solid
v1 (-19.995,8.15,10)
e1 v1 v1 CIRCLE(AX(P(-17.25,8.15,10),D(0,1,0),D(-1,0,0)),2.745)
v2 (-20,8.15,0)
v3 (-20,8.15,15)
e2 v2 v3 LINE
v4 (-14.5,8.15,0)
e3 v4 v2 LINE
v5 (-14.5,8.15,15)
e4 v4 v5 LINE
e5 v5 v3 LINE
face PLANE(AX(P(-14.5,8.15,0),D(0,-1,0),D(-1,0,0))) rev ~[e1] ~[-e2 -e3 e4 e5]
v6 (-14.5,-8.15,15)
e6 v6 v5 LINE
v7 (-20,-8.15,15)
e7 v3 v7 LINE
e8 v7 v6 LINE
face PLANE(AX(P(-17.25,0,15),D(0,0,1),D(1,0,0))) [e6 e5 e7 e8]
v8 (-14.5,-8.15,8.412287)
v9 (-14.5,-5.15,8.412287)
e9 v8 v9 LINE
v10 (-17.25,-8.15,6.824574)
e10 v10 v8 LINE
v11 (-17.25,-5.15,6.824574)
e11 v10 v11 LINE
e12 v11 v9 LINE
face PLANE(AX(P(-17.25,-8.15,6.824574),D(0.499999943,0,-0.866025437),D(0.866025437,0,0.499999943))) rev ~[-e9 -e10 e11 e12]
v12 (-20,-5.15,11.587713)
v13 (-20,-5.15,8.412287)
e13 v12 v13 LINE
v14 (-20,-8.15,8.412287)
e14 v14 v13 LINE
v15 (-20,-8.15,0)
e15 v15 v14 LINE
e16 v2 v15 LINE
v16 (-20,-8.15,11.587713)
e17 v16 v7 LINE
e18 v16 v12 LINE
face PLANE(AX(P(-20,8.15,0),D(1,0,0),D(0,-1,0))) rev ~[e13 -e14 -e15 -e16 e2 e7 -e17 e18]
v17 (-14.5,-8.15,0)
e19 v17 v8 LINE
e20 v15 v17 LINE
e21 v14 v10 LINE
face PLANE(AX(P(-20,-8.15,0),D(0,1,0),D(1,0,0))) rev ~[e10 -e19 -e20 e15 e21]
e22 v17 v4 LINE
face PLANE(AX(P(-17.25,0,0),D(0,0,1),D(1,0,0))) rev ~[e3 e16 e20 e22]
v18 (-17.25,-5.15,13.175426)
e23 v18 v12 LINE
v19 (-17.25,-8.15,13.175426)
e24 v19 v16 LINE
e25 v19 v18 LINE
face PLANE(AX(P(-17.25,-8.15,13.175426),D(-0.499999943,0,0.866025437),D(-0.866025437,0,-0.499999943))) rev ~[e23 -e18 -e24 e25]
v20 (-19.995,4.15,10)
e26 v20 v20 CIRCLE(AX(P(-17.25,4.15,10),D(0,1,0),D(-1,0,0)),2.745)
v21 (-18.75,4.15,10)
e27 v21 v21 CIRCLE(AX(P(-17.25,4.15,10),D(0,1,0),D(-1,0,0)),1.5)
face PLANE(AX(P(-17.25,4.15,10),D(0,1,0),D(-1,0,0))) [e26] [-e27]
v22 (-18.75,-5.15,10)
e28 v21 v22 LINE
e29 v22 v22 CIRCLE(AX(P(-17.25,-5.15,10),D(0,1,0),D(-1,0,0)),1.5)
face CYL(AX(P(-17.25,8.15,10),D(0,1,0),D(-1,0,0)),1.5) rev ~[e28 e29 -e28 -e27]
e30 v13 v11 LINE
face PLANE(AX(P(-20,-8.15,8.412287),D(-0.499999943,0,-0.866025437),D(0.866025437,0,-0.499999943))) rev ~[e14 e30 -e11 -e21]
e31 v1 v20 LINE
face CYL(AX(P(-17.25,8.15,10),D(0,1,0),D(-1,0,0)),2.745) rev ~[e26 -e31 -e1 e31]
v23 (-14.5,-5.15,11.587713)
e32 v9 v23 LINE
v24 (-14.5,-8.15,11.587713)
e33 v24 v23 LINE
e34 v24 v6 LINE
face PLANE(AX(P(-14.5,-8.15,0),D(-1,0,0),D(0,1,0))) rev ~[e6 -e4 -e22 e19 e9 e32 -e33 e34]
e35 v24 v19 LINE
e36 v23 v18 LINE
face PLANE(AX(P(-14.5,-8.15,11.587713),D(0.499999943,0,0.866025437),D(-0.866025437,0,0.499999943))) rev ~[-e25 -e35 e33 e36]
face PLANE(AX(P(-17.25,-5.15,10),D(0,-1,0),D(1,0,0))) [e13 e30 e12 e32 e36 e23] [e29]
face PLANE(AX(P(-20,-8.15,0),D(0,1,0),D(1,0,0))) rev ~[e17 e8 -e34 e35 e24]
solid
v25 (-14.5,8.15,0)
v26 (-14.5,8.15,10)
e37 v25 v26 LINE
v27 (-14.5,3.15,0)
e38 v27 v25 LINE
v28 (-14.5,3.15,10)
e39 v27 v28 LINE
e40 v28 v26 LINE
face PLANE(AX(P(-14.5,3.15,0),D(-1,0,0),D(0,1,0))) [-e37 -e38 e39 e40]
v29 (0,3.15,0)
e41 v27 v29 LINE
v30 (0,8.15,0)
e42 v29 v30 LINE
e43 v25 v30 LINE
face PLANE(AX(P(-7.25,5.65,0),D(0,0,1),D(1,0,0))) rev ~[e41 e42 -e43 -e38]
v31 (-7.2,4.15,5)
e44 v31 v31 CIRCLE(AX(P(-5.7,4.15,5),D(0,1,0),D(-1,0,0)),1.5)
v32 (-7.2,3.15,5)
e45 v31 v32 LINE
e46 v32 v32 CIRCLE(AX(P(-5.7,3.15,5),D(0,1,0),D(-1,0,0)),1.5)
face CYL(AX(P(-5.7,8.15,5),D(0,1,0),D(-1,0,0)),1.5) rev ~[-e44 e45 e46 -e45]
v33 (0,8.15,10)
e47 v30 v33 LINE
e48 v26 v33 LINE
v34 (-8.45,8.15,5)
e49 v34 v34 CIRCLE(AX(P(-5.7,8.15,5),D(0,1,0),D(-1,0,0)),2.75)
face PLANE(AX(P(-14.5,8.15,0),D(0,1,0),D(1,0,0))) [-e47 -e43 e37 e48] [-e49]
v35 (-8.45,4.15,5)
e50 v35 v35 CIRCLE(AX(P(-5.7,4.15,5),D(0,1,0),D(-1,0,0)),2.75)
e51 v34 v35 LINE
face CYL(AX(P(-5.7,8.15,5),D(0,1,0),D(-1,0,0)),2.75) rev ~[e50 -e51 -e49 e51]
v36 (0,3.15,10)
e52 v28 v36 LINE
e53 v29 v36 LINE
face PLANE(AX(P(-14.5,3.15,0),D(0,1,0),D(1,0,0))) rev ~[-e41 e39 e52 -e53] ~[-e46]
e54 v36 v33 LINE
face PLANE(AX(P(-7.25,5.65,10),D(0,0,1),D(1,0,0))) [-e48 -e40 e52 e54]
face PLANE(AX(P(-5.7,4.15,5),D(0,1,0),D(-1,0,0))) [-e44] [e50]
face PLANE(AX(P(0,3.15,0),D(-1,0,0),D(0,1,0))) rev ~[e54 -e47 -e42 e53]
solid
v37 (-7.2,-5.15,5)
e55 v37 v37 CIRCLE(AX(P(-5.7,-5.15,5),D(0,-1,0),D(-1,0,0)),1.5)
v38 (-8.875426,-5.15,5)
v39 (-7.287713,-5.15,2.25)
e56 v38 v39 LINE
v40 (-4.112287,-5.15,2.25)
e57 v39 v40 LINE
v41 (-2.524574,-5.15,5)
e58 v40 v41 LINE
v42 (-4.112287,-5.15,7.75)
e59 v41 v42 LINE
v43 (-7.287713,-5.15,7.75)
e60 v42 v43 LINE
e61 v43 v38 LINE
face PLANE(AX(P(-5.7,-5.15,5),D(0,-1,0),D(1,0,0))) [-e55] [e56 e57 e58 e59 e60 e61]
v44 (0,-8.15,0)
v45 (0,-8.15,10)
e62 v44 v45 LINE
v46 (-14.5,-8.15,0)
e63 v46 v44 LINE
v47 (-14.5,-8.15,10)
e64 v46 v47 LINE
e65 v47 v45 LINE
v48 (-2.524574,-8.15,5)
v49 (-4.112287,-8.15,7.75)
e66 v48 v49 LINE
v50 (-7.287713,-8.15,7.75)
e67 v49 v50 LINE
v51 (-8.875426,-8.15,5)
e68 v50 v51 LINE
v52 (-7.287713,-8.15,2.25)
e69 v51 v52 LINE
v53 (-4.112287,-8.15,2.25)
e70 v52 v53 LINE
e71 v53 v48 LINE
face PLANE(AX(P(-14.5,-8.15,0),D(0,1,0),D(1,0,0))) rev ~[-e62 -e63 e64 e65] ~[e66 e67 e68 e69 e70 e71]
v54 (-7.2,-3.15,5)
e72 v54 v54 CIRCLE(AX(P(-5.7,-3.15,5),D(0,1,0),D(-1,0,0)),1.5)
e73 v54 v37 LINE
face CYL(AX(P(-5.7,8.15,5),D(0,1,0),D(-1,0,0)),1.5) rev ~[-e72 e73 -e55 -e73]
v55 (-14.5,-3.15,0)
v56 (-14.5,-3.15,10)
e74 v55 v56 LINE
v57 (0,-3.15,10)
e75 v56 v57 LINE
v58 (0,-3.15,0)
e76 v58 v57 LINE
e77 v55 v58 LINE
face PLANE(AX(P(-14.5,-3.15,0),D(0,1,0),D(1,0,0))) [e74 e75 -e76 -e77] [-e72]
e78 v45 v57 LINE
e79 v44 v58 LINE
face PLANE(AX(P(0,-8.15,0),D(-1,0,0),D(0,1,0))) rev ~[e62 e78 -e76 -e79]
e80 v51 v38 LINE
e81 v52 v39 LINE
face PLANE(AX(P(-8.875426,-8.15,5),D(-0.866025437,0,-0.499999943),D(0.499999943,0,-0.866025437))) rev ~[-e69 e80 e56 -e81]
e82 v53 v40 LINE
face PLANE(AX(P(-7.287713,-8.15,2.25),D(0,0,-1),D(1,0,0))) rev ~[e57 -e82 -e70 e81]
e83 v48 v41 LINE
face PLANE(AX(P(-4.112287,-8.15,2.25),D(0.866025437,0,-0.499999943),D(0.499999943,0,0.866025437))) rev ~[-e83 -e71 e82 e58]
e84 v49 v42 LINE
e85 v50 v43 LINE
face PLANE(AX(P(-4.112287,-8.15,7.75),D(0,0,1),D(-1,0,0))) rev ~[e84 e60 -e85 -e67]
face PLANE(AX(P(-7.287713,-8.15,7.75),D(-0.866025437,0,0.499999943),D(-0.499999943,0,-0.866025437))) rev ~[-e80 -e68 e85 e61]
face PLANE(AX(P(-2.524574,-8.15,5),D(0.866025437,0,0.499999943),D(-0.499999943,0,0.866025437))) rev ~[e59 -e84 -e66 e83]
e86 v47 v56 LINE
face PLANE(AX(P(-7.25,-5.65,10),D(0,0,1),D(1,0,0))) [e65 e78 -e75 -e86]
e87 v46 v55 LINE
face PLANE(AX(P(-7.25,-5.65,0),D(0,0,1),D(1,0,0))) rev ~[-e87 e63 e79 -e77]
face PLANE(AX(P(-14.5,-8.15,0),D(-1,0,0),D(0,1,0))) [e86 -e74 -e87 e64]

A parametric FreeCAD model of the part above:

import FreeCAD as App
import Part
import Sketcher

V = App.Vector
Q = App.Units.Quantity

doc = App.newDocument("Part")
body = doc.addObject("PartDesign::Body", "Body")
body.AllowCompound = True

# Sketch on XY plane
sketch1 = body.newObject("Sketcher::SketchObject", "Sketch")
sketch1.AttachmentSupport = (doc.getObject("XY_Plane"), [""])
sketch1.MapMode = "FlatFace"
sketch1.addGeometry(Part.LineSegment(V(-14, 8, 0), V(-14, 3, 0)), False)
sketch1.addGeometry(Part.LineSegment(V(-14, 3, 0), V(0, 3, 0)), False)
sketch1.addGeometry(Part.LineSegment(V(0, 3, 0), V(0, 8, 0)), False)
sketch1.addGeometry(Part.LineSegment(V(0, 8, 0), V(-14, 8, 0)), False)
sketch1.addGeometry(Part.LineSegment(V(-14, -3, 0), V(-14, -8, 0)), False)
sketch1.addGeometry(Part.LineSegment(V(-14, -8, 0), V(0, -8, 0)), False)
sketch1.addGeometry(Part.LineSegment(V(0, -8, 0), V(0, -3, 0)), False)
sketch1.addGeometry(Part.LineSegment(V(0, -3, 0), V(-14, -3, 0)), False)
sketch1.addConstraint(Sketcher.Constraint("Coincident", 0, 2, 1, 1))
sketch1.addConstraint(Sketcher.Constraint("Coincident", 1, 2, 2, 1))
sketch1.addConstraint(Sketcher.Constraint("Coincident", 2, 2, 3, 1))
sketch1.addConstraint(Sketcher.Constraint("Coincident", 3, 2, 0, 1))
sketch1.addConstraint(Sketcher.Constraint("Coincident", 4, 2, 5, 1))
sketch1.addConstraint(Sketcher.Constraint("Coincident", 5, 2, 6, 1))
sketch1.addConstraint(Sketcher.Constraint("Coincident", 6, 2, 7, 1))
sketch1.addConstraint(Sketcher.Constraint("Coincident", 7, 2, 4, 1))
sketch1.addConstraint(Sketcher.Constraint("Vertical", 0))
sketch1.addConstraint(Sketcher.Constraint("Horizontal", 1))
sketch1.addConstraint(Sketcher.Constraint("Vertical", 2))
sketch1.addConstraint(Sketcher.Constraint("Horizontal", 3))
sketch1.addConstraint(Sketcher.Constraint("Vertical", 4))
sketch1.addConstraint(Sketcher.Constraint("Horizontal", 5))
sketch1.addConstraint(Sketcher.Constraint("Vertical", 6))
sketch1.addConstraint(Sketcher.Constraint("Horizontal", 7))
sketch1.addConstraint(Sketcher.Constraint("Symmetric", 2, 2, 5, 2, -1, 1))
sketch1.addConstraint(Sketcher.Constraint("Symmetric", 1, 2, 6, 2, -1))
sketch1.addConstraint(Sketcher.Constraint("Vertical", 3, 2, 4, 2))
sketch1.addConstraint(Sketcher.Constraint("DistanceY", 0, 2, 0, 1, 5.0))
sketch1.addConstraint(Sketcher.Constraint("DistanceX", 1, 1, 1, 2, 14.5))
sketch1.addConstraint(Sketcher.Constraint("DistanceY", 4, 2, 0, 2, 11.3))
pad1 = body.newObject("PartDesign::Pad", "Pad")
pad1.Profile = sketch1
pad1.Length = 10
body2 = doc.addObject("PartDesign::Body", "Body001")

# Sketch on XY plane
sketch2 = body2.newObject("Sketcher::SketchObject", "Sketch001")
sketch2.AttachmentSupport = (doc.getObject("XY_Plane001"), [""])
sketch2.MapMode = "FlatFace"
sketch2.addGeometry(Part.LineSegment(V(-14, -8, 0), V(-14, 8, 0)), False)
sketch2.addGeometry(Part.LineSegment(V(-14, 8, 0), V(-20, 8, 0)), False)
sketch2.addGeometry(Part.LineSegment(V(-20, 8, 0), V(-20, -8, 0)), False)
sketch2.addGeometry(Part.LineSegment(V(-20, -8, 0), V(-14, -8, 0)), False)
sketch2.addConstraint(Sketcher.Constraint("Coincident", 0, 2, 1, 1))
sketch2.addConstraint(Sketcher.Constraint("Coincident", 1, 2, 2, 1))
sketch2.addConstraint(Sketcher.Constraint("Coincident", 2, 2, 3, 1))
sketch2.addConstraint(Sketcher.Constraint("Coincident", 3, 2, 0, 1))
sketch2.addConstraint(Sketcher.Constraint("Vertical", 0))
sketch2.addConstraint(Sketcher.Constraint("Horizontal", 1))
sketch2.addConstraint(Sketcher.Constraint("Vertical", 2))
sketch2.addConstraint(Sketcher.Constraint("Horizontal", 3))
sketch2.addConstraint(Sketcher.Constraint("DistanceX", 1, 2, 1, 1, 5.5))
sketch2.addConstraint(Sketcher.Constraint("DistanceY", 0, 1, 0, 2, 16.3))
sketch2.addConstraint(Sketcher.Constraint("DistanceX", 1, 2, -1, 1, 20.0))
sketch2.addConstraint(Sketcher.Constraint("DistanceY", -1, 1, 0, 2, 8.15))
pad2 = body2.newObject("PartDesign::Pad", "Pad001")
pad2.Profile = sketch2
pad2.Length = 15
body3 = doc.addObject("PartDesign::Body", "Body002")
body3.AllowCompound = True

# Sketch on XZ plane
sketch3 = body3.newObject("Sketcher::SketchObject", "Sketch002")
sketch3.AttachmentSupport = (doc.getObject("XZ_Plane002"), [""])
sketch3.MapMode = "FlatFace"
sketch3.AttachmentOffset = App.Placement(V(0, 0, -8.15), App.Rotation())
sketch3.addGeometry(Part.Circle(V(-5.7, 5, 0), V(0, 0, 1), 1.5), False)
sketch3.addGeometry(Part.Circle(V(-17.2, 10, 0), V(0, 0, 1), 1.5), False)
sketch3.addConstraint(Sketcher.Constraint("Equal", 0, 1))
sketch3.addConstraint(Sketcher.Constraint("Diameter", 0, 3.0))
sketch3.addConstraint(Sketcher.Constraint("DistanceY", -1, 1, 0, 3, 5.0))
sketch3.addConstraint(Sketcher.Constraint("DistanceY", -1, 1, 1, 3, 10.0))
sketch3.addConstraint(Sketcher.Constraint("DistanceX", 0, 3, -1, 1, 5.7))
sketch3.addConstraint(Sketcher.Constraint("DistanceX", 1, 3, -1, 1, 17.25))
pad3 = body3.newObject("PartDesign::Pad", "Pad002")
pad3.Profile = sketch3
pad3.Length = 16.3
body.AllowCompound = True
doc.recompute()

body4 = doc.addObject("PartDesign::Body", "Body003")
body4.BaseFeature = body3
boolean = body.newObject("PartDesign::Boolean", "Boolean")
boolean.Type = "Cut"
boolean.addObjects([body4])
doc.recompute()

boolean2 = body2.newObject("PartDesign::Boolean", "Boolean001")
boolean2.Type = "Cut"
boolean2.addObjects([body3])
body5 = doc.addObject("PartDesign::Body", "Body004")
body5.AllowCompound = True

# Sketch on XZ plane
sketch4 = body5.newObject("Sketcher::SketchObject", "Sketch003")
sketch4.AttachmentSupport = (doc.getObject("XZ_Plane004"), [""])
sketch4.MapMode = "FlatFace"
sketch4.AttachmentOffset = App.Placement(V(0, 0, -8.15), App.Rotation())
sketch4.addGeometry(Part.Circle(V(-17.2, 10, 0), V(0, 0, 1), 2.7), False)
sketch4.addGeometry(Part.Circle(V(-17.2, 10, 0), V(0, 0, 1), 1.5), False)
sketch4.addGeometry(Part.Circle(V(-5.7, 5, 0), V(0, 0, 1), 2.8), False)
sketch4.addGeometry(Part.Circle(V(-5.7, 5, 0), V(0, 0, 1), 1.5), False)
sketch4.addConstraint(Sketcher.Constraint("Coincident", 1, 3, 0, 3))
sketch4.addConstraint(Sketcher.Constraint("Coincident", 3, 3, 2, 3))
sketch4.addConstraint(Sketcher.Constraint("Equal", 1, 3))
sketch4.addConstraint(Sketcher.Constraint("Diameter", 1, 3.0))
sketch4.addConstraint(Sketcher.Constraint("Diameter", 2, 5.5))
sketch4.addConstraint(Sketcher.Constraint("Diameter", 0, 5.49))
sketch4.addConstraint(Sketcher.Constraint("DistanceY", -1, 1, 0, 3, 10.0))
sketch4.addConstraint(Sketcher.Constraint("DistanceY", -1, 1, 2, 3, 5.0))
sketch4.addConstraint(Sketcher.Constraint("DistanceX", 2, 3, -1, 1, 5.7))
sketch4.addConstraint(Sketcher.Constraint("DistanceX", 0, 3, -1, 1, 17.25))
pad4 = body5.newObject("PartDesign::Pad", "Pad003")
pad4.Profile = sketch4
pad4.Length = 4
body.AllowCompound = True
doc.recompute()

body6 = doc.addObject("PartDesign::Body", "Body005")
body6.BaseFeature = body5
boolean3 = body.newObject("PartDesign::Boolean", "Boolean002")
boolean3.Type = "Cut"
boolean3.addObjects([body6])
doc.recompute()

# Sketch on XZ plane
sketch5 = body.newObject("Sketcher::SketchObject", "Sketch004")
sketch5.AttachmentSupport = (doc.getObject("XZ_Plane"), [""])
sketch5.MapMode = "FlatFace"
sketch5.AttachmentOffset = App.Placement(V(0, 0, 8.15), App.Rotation())
sketch5.addGeometry(Part.LineSegment(V(-4.1, 2.2, 0), V(-2.5, 5, 0)), False)
sketch5.addGeometry(Part.LineSegment(V(-2.5, 5, 0), V(-4.1, 7.8, 0)), False)
sketch5.addGeometry(Part.LineSegment(V(-4.1, 7.8, 0), V(-7.3, 7.8, 0)), False)
sketch5.addGeometry(Part.LineSegment(V(-7.3, 7.8, 0), V(-8.9, 5, 0)), False)
sketch5.addGeometry(Part.LineSegment(V(-8.9, 5, 0), V(-7.3, 2.2, 0)), False)
sketch5.addGeometry(Part.LineSegment(V(-7.3, 2.2, 0), V(-4.1, 2.2, 0)), False)
sketch5.addGeometry(Part.Circle(V(-5.7, 5, 0), V(0, 0, 1), 1.5), False)
sketch5.addConstraint(Sketcher.Constraint("Coincident", 0, 2, 1, 1))
sketch5.addConstraint(Sketcher.Constraint("Coincident", 1, 2, 2, 1))
sketch5.addConstraint(Sketcher.Constraint("Coincident", 2, 2, 3, 1))
sketch5.addConstraint(Sketcher.Constraint("Coincident", 3, 2, 4, 1))
sketch5.addConstraint(Sketcher.Constraint("Coincident", 4, 2, 5, 1))
sketch5.addConstraint(Sketcher.Constraint("Coincident", 5, 2, 0, 1))
sketch5.addConstraint(Sketcher.Constraint("Horizontal", 2))
sketch5.addConstraint(Sketcher.Constraint("Horizontal", 5))
sketch5.addConstraint(Sketcher.Constraint("Parallel", 0, 3))
sketch5.addConstraint(Sketcher.Constraint("Parallel", 1, 4))
sketch5.addConstraint(Sketcher.Constraint("Horizontal", 6, 3, 0, 2))
sketch5.addConstraint(Sketcher.Constraint("Horizontal", 0, 2, 3, 2))
sketch5.addConstraint(Sketcher.Constraint("Vertical", 2, 2, 4, 2))
sketch5.addConstraint(Sketcher.Constraint("Vertical", 1, 2, 5, 2))
sketch5.addConstraint(Sketcher.Constraint("Diameter", 6, 3.0))
sketch5.addConstraint(Sketcher.Constraint("Angle", 0, Q("60.000004 deg")))
sketch5.addConstraint(Sketcher.Constraint("DistanceY", -1, 1, 6, 3, 5.0))
sketch5.addConstraint(Sketcher.Constraint("DistanceX", 6, 3, -1, 1, 5.7))
sketch5.addConstraint(Sketcher.Constraint("DistanceY", 4, 2, 2, 2, 5.5))
sketch5.addConstraint(Sketcher.Constraint("DistanceX", 2, 2, 2, 1, 3.175426))
sketch5.addConstraint(Sketcher.Constraint("DistanceX", 0, 2, -1, 1, 2.524574))
pocket1 = body.newObject("PartDesign::Pocket", "Pocket")
pocket1.Profile = sketch5
pocket1.Length = 3
doc.recompute()

boolean4 = body2.newObject("PartDesign::Boolean", "Boolean003")
boolean4.Type = "Cut"
boolean4.addObjects([body5])

# Sketch on XZ plane
sketch6 = body2.newObject("Sketcher::SketchObject", "Sketch005")
sketch6.AttachmentSupport = (doc.getObject("XZ_Plane001"), [""])
sketch6.MapMode = "FlatFace"
sketch6.AttachmentOffset = App.Placement(V(0, 0, 8.15), App.Rotation())
sketch6.addGeometry(Part.LineSegment(V(-14.5, 11.6, 0), V(-17.2, 13.2, 0)), False)
sketch6.addGeometry(Part.LineSegment(V(-17.2, 13.2, 0), V(-20, 11.6, 0)), False)
sketch6.addGeometry(Part.LineSegment(V(-20, 11.6, 0), V(-20, 8.4, 0)), False)
sketch6.addGeometry(Part.LineSegment(V(-20, 8.4, 0), V(-17.2, 6.8, 0)), False)
sketch6.addGeometry(Part.LineSegment(V(-17.2, 6.8, 0), V(-14.5, 8.4, 0)), False)
sketch6.addGeometry(Part.LineSegment(V(-14.5, 8.4, 0), V(-14.5, 11.6, 0)), False)
sketch6.addGeometry(Part.Circle(V(-17.2, 10, 0), V(0, 0, 1), 1.5), False)
sketch6.addConstraint(Sketcher.Constraint("Coincident", 0, 2, 1, 1))
sketch6.addConstraint(Sketcher.Constraint("Coincident", 1, 2, 2, 1))
sketch6.addConstraint(Sketcher.Constraint("Coincident", 2, 2, 3, 1))
sketch6.addConstraint(Sketcher.Constraint("Coincident", 3, 2, 4, 1))
sketch6.addConstraint(Sketcher.Constraint("Coincident", 4, 2, 5, 1))
sketch6.addConstraint(Sketcher.Constraint("Coincident", 5, 2, 0, 1))
sketch6.addConstraint(Sketcher.Constraint("Vertical", 2))
sketch6.addConstraint(Sketcher.Constraint("Vertical", 5))
sketch6.addConstraint(Sketcher.Constraint("Parallel", 0, 3))
sketch6.addConstraint(Sketcher.Constraint("Parallel", 1, 4))
sketch6.addConstraint(Sketcher.Constraint("Horizontal", 2, 2, 4, 2))
sketch6.addConstraint(Sketcher.Constraint("Horizontal", 1, 2, 5, 2))
sketch6.addConstraint(Sketcher.Constraint("Vertical", 6, 3, 0, 2))
sketch6.addConstraint(Sketcher.Constraint("Vertical", 0, 2, 3, 2))
sketch6.addConstraint(Sketcher.Constraint("Diameter", 6, 3.0))
sketch6.addConstraint(Sketcher.Constraint("Angle", 0, Q("150.000004 deg")))
sketch6.addConstraint(Sketcher.Constraint("DistanceY", -1, 1, 6, 3, 10.0))
sketch6.addConstraint(Sketcher.Constraint("DistanceX", 1, 2, -1, 1, 20.0))
sketch6.addConstraint(Sketcher.Constraint("DistanceX", 4, 2, -1, 1, 14.5))
sketch6.addConstraint(Sketcher.Constraint("DistanceY", 2, 2, 2, 1, 3.175426))
sketch6.addConstraint(Sketcher.Constraint("DistanceY", -1, 1, 0, 2, 13.175426))
pocket2 = body2.newObject("PartDesign::Pocket", "Pocket001")
pocket2.Profile = sketch6
pocket2.Length = 3

doc.recompute()
